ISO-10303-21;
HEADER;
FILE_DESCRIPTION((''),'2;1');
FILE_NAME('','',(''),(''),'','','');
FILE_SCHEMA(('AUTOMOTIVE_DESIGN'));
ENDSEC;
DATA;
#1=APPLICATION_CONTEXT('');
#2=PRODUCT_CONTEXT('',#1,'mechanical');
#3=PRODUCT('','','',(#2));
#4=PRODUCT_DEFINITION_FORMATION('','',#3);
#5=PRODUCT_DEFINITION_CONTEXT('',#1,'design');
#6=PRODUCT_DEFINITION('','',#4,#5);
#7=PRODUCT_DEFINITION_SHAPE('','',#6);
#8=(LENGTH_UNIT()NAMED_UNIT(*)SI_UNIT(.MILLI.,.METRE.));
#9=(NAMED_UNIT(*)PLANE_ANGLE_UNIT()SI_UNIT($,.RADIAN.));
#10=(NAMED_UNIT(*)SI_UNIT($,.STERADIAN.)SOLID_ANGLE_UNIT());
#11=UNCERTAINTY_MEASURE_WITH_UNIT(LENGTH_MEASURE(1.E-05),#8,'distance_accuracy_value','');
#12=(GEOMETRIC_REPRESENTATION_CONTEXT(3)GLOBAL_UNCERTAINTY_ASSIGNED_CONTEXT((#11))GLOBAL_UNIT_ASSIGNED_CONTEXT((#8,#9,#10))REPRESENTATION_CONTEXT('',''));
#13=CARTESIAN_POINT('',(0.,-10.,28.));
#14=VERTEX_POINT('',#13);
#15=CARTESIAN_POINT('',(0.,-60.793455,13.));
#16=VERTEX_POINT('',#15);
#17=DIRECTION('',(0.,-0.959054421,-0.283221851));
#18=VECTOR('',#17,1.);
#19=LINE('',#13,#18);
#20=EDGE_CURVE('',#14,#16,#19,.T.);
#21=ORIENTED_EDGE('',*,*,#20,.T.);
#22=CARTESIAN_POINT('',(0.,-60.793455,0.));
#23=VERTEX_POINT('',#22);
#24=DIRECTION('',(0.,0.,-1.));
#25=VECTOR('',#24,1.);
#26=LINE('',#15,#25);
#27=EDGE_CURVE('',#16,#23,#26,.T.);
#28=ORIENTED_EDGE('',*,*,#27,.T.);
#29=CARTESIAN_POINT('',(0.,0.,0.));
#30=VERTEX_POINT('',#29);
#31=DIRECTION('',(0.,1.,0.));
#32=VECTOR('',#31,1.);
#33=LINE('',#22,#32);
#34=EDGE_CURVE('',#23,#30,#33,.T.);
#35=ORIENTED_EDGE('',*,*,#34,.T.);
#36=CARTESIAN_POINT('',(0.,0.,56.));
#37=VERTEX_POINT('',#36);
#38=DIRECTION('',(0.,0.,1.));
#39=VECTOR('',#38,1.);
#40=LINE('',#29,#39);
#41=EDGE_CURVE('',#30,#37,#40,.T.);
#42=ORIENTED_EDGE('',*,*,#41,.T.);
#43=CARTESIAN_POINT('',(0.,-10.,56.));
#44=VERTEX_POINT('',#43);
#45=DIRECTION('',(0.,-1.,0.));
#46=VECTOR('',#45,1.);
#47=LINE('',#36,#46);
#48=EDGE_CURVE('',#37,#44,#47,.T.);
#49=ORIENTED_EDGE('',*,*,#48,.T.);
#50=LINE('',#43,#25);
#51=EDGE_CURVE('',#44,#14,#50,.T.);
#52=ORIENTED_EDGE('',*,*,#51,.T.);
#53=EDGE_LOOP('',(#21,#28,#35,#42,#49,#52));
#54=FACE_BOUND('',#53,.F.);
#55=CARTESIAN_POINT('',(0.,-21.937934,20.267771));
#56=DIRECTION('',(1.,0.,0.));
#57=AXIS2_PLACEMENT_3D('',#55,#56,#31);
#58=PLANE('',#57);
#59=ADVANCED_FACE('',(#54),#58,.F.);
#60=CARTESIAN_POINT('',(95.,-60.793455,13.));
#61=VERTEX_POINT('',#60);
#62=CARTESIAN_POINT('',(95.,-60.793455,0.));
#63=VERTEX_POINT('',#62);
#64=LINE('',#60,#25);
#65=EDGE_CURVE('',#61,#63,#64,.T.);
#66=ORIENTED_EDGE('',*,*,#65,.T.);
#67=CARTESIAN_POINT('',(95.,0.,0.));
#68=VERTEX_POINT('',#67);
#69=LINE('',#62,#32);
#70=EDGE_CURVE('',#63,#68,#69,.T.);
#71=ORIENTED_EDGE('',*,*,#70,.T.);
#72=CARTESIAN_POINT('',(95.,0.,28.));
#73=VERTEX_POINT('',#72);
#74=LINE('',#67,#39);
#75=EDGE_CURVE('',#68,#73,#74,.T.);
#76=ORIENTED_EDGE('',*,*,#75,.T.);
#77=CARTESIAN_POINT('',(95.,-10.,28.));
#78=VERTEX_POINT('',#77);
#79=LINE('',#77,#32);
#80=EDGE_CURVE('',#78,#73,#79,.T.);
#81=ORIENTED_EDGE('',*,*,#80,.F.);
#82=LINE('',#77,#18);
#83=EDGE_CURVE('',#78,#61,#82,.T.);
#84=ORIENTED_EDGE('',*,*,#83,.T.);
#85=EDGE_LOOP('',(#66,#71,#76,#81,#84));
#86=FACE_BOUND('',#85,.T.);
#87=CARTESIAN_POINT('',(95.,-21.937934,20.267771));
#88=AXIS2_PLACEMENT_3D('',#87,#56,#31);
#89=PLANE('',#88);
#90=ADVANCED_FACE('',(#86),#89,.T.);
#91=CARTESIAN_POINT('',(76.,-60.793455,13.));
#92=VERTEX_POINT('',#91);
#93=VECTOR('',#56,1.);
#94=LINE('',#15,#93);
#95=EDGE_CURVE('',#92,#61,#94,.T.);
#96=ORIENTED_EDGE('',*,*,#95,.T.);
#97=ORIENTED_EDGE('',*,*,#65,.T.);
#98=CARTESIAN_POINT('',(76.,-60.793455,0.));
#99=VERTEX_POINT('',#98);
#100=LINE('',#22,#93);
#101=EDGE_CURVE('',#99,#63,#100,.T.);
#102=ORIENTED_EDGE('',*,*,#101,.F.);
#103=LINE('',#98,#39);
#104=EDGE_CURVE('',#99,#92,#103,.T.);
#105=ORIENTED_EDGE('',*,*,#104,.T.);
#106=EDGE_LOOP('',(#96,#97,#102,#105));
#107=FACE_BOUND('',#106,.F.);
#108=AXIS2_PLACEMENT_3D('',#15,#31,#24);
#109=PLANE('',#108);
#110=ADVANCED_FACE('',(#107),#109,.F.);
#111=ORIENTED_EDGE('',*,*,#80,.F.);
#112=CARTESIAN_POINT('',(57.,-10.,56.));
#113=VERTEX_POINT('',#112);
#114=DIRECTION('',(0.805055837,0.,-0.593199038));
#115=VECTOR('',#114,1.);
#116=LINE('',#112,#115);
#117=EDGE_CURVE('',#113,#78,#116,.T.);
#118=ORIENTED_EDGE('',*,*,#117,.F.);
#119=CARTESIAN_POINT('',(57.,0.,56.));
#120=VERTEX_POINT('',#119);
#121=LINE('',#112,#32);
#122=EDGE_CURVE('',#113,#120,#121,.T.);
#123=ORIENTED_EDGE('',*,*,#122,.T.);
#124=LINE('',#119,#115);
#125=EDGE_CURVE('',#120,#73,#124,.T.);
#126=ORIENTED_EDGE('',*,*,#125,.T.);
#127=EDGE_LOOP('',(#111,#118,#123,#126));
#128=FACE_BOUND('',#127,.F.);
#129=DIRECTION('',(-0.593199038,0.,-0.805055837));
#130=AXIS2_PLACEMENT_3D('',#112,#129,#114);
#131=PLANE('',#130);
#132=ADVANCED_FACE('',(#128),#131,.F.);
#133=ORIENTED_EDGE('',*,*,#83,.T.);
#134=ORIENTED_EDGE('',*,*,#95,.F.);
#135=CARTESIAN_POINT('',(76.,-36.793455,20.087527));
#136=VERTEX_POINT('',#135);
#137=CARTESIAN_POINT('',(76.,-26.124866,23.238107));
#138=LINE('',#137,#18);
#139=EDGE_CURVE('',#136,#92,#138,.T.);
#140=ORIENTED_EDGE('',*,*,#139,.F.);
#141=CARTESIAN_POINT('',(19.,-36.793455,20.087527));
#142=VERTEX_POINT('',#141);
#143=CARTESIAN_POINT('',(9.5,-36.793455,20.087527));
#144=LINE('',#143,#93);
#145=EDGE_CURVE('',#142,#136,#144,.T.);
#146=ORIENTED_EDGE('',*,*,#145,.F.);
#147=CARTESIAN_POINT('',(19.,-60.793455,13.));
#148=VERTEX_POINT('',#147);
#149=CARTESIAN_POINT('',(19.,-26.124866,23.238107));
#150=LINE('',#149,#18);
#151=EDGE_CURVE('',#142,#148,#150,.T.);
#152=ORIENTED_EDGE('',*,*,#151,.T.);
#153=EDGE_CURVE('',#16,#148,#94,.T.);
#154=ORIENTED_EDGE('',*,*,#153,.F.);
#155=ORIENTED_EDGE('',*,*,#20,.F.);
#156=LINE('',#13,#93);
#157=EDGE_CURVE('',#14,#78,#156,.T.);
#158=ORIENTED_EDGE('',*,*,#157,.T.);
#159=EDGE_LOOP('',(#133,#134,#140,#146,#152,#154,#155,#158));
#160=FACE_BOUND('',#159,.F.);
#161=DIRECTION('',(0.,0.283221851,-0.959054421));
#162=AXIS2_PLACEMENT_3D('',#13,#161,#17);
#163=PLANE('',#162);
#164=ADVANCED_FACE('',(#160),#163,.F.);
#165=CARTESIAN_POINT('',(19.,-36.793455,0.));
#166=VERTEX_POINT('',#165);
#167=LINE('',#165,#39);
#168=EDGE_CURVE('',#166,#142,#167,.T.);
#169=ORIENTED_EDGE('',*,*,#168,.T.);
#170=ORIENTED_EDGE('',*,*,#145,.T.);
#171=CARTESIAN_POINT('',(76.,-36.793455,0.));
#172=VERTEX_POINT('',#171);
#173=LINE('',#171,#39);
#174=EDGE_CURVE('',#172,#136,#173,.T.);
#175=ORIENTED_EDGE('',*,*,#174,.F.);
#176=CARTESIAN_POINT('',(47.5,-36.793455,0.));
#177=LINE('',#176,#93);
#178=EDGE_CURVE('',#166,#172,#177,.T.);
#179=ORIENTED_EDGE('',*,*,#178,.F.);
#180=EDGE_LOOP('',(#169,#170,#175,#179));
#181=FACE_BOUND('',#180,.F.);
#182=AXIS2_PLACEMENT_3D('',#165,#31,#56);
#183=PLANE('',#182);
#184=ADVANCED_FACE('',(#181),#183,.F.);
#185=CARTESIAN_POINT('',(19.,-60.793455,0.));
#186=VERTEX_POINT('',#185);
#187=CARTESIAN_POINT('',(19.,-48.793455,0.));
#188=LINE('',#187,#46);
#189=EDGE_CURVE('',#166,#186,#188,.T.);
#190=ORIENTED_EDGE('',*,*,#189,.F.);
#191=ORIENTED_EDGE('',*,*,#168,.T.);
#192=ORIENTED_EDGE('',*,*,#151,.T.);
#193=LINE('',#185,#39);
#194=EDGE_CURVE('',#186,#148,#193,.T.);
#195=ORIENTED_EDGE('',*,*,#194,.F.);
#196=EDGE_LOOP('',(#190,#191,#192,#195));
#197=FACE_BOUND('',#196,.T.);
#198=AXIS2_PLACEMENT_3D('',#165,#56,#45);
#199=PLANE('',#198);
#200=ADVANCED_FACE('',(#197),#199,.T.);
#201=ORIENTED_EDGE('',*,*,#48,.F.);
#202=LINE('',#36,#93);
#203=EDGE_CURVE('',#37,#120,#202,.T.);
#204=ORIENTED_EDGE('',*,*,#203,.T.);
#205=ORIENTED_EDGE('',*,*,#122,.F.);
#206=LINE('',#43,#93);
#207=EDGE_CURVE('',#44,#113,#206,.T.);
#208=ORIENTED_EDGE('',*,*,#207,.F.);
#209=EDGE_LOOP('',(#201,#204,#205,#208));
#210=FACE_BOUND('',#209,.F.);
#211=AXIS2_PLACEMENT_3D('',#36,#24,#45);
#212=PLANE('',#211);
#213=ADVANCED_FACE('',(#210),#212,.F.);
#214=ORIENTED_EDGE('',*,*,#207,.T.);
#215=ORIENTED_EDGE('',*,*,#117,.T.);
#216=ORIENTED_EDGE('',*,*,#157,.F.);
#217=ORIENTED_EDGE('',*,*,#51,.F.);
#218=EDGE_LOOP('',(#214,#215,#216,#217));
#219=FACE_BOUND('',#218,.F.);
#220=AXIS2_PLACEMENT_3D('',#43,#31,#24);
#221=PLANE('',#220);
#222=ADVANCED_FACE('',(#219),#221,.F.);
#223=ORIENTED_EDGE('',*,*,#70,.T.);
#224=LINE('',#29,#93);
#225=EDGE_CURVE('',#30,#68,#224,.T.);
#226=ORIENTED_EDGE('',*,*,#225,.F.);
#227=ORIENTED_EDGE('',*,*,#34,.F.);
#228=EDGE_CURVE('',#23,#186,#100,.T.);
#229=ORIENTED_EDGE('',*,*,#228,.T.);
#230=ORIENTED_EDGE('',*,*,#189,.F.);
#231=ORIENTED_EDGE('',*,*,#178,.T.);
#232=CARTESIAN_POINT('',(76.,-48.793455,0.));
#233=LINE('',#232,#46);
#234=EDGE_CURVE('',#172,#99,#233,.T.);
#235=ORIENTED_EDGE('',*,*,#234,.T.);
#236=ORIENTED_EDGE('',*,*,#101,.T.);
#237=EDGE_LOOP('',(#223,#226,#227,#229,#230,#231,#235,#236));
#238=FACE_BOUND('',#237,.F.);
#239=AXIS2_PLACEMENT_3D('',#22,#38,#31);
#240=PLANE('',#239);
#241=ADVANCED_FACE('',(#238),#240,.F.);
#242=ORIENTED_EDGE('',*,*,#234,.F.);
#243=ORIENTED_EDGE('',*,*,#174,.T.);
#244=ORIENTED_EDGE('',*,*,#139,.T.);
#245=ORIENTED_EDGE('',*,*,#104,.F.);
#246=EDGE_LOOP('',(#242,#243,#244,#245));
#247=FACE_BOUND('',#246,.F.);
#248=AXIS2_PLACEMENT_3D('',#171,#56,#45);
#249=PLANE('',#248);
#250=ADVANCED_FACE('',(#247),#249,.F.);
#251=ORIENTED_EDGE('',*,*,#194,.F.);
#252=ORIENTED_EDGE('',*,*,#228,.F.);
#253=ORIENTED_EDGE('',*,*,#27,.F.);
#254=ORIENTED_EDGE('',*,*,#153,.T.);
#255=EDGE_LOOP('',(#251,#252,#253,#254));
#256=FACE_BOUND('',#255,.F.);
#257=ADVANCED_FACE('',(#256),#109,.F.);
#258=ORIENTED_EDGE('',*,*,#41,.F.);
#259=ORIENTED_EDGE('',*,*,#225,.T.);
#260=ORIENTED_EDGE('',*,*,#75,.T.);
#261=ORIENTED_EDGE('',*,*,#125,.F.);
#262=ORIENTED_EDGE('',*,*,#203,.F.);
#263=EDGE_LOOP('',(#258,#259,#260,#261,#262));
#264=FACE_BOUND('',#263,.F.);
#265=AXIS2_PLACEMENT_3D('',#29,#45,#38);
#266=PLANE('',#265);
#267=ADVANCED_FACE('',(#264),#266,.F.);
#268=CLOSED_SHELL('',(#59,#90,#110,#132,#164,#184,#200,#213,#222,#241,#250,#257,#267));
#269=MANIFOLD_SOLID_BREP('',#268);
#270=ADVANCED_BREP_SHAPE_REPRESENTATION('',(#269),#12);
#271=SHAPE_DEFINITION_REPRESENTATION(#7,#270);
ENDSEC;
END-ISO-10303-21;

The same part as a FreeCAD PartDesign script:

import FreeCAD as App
import Part
import Sketcher
from FreeCAD import Vector


def add_polygon(sketch, points):
    """Adds a closed chain of lines whose ends are joined by coincident constraints."""
    first, n = sketch.GeometryCount, len(points)
    for a, b in zip(points, points[1:] + points[:1]):
        sketch.addGeometry(Part.LineSegment(App.Vector(*a, 0), App.Vector(*b, 0)), False)
    for i in range(n):
        sketch.addConstraint(Sketcher.Constraint("Coincident", first + i, 2, first + (i + 1) % n, 1))

doc = App.newDocument("Part")
body = doc.addObject("PartDesign::Body", "Body")

# Sketch on YZ plane
sketch1 = body.newObject("Sketcher::SketchObject", "Sketch")
sketch1.AttachmentSupport = (doc.getObject("YZ_Plane"), [""])
sketch1.MapMode = "FlatFace"
add_polygon(sketch1, [(0, 56), (-10, 56), (-10, 28), (-61, 13), (-61, 0), (0, 0)])  # lines 0-5
sketch1.addConstraint(Sketcher.Constraint("Horizontal", 0))
sketch1.addConstraint(Sketcher.Constraint("Vertical", 1))
sketch1.addConstraint(Sketcher.Constraint("Vertical", 3))
sketch1.addConstraint(Sketcher.Constraint("Horizontal", 4))
sketch1.addConstraint(Sketcher.Constraint("Vertical", 5))
sketch1.addConstraint(Sketcher.Constraint("Coincident", 4, 2, -1, 1))
sketch1.addConstraint(Sketcher.Constraint("DistanceX", 0, 2, 0, 1, 10.0))
sketch1.addConstraint(Sketcher.Constraint("DistanceY", 1, 2, 1, 1, 28.0))
sketch1.addConstraint(Sketcher.Constraint("DistanceY", 3, 2, 3, 1, 13.0))
sketch1.addConstraint(Sketcher.Constraint("DistanceY", 5, 1, 5, 2, 56.0))
sketch1.addConstraint(Sketcher.Constraint("DistanceX", 4, 1, 4, 2, 60.793455))
pad1 = body.newObject("PartDesign::Pad", "Pad")
pad1.Profile = sketch1
pad1.Length = 95

# Sketch on XZ plane
sketch2 = body.newObject("Sketcher::SketchObject", "Sketch001")
sketch2.AttachmentSupport = (doc.getObject("XZ_Plane"), [""])
sketch2.MapMode = "FlatFace"
sketch2.AttachmentOffset = App.Placement(Vector(0, 0, 10), App.Rotation())
add_polygon(sketch2, [(95, 56), (57, 56), (95, 28)])  # lines 0-2
sketch2.addConstraint(Sketcher.Constraint("Horizontal", 0))
sketch2.addConstraint(Sketcher.Constraint("Vertical", 2))
sketch2.addConstraint(Sketcher.Constraint("DistanceX", 0, 2, 0, 1, 38.0))
sketch2.addConstraint(Sketcher.Constraint("DistanceY", 2, 1, 2, 2, 28.0))
sketch2.addConstraint(Sketcher.Constraint("DistanceX", -1, 1, 0, 2, 57.0))
sketch2.addConstraint(Sketcher.Constraint("DistanceY", -1, 1, 0, 2, 56.0))
pocket1 = body.newObject("PartDesign::Pocket", "Pocket")
pocket1.Profile = sketch2
pocket1.Type = "ThroughAll"

# Sketch on XY plane
sketch3 = body.newObject("Sketcher::SketchObject", "Sketch002")
sketch3.AttachmentSupport = (doc.getObject("XY_Plane"), [""])
sketch3.MapMode = "FlatFace"
add_polygon(sketch3, [(19, -61), (19, -37), (76, -37), (76, -61)])  # lines 0-3
sketch3.addConstraint(Sketcher.Constraint("Vertical", 0))
sketch3.addConstraint(Sketcher.Constraint("Horizontal", 1))
sketch3.addConstraint(Sketcher.Constraint("Vertical", 2))
sketch3.addConstraint(Sketcher.Constraint("Horizontal", 3))
sketch3.addConstraint(Sketcher.Constraint("DistanceX", 1, 1, 1, 2, 57.0))
sketch3.addConstraint(Sketcher.Constraint("DistanceY", 0, 1, 0, 2, 24.0))
sketch3.addConstraint(Sketcher.Constraint("DistanceX", -1, 1, 0, 2, 19.0))
sketch3.addConstraint(Sketcher.Constraint("DistanceY", 0, 2, -1, 1, 36.793455))
pocket2 = body.newObject("PartDesign::Pocket", "Pocket001")
pocket2.Profile = sketch3
pocket2.Length = 55.8
pocket2.Reversed = True

doc.recompute()
